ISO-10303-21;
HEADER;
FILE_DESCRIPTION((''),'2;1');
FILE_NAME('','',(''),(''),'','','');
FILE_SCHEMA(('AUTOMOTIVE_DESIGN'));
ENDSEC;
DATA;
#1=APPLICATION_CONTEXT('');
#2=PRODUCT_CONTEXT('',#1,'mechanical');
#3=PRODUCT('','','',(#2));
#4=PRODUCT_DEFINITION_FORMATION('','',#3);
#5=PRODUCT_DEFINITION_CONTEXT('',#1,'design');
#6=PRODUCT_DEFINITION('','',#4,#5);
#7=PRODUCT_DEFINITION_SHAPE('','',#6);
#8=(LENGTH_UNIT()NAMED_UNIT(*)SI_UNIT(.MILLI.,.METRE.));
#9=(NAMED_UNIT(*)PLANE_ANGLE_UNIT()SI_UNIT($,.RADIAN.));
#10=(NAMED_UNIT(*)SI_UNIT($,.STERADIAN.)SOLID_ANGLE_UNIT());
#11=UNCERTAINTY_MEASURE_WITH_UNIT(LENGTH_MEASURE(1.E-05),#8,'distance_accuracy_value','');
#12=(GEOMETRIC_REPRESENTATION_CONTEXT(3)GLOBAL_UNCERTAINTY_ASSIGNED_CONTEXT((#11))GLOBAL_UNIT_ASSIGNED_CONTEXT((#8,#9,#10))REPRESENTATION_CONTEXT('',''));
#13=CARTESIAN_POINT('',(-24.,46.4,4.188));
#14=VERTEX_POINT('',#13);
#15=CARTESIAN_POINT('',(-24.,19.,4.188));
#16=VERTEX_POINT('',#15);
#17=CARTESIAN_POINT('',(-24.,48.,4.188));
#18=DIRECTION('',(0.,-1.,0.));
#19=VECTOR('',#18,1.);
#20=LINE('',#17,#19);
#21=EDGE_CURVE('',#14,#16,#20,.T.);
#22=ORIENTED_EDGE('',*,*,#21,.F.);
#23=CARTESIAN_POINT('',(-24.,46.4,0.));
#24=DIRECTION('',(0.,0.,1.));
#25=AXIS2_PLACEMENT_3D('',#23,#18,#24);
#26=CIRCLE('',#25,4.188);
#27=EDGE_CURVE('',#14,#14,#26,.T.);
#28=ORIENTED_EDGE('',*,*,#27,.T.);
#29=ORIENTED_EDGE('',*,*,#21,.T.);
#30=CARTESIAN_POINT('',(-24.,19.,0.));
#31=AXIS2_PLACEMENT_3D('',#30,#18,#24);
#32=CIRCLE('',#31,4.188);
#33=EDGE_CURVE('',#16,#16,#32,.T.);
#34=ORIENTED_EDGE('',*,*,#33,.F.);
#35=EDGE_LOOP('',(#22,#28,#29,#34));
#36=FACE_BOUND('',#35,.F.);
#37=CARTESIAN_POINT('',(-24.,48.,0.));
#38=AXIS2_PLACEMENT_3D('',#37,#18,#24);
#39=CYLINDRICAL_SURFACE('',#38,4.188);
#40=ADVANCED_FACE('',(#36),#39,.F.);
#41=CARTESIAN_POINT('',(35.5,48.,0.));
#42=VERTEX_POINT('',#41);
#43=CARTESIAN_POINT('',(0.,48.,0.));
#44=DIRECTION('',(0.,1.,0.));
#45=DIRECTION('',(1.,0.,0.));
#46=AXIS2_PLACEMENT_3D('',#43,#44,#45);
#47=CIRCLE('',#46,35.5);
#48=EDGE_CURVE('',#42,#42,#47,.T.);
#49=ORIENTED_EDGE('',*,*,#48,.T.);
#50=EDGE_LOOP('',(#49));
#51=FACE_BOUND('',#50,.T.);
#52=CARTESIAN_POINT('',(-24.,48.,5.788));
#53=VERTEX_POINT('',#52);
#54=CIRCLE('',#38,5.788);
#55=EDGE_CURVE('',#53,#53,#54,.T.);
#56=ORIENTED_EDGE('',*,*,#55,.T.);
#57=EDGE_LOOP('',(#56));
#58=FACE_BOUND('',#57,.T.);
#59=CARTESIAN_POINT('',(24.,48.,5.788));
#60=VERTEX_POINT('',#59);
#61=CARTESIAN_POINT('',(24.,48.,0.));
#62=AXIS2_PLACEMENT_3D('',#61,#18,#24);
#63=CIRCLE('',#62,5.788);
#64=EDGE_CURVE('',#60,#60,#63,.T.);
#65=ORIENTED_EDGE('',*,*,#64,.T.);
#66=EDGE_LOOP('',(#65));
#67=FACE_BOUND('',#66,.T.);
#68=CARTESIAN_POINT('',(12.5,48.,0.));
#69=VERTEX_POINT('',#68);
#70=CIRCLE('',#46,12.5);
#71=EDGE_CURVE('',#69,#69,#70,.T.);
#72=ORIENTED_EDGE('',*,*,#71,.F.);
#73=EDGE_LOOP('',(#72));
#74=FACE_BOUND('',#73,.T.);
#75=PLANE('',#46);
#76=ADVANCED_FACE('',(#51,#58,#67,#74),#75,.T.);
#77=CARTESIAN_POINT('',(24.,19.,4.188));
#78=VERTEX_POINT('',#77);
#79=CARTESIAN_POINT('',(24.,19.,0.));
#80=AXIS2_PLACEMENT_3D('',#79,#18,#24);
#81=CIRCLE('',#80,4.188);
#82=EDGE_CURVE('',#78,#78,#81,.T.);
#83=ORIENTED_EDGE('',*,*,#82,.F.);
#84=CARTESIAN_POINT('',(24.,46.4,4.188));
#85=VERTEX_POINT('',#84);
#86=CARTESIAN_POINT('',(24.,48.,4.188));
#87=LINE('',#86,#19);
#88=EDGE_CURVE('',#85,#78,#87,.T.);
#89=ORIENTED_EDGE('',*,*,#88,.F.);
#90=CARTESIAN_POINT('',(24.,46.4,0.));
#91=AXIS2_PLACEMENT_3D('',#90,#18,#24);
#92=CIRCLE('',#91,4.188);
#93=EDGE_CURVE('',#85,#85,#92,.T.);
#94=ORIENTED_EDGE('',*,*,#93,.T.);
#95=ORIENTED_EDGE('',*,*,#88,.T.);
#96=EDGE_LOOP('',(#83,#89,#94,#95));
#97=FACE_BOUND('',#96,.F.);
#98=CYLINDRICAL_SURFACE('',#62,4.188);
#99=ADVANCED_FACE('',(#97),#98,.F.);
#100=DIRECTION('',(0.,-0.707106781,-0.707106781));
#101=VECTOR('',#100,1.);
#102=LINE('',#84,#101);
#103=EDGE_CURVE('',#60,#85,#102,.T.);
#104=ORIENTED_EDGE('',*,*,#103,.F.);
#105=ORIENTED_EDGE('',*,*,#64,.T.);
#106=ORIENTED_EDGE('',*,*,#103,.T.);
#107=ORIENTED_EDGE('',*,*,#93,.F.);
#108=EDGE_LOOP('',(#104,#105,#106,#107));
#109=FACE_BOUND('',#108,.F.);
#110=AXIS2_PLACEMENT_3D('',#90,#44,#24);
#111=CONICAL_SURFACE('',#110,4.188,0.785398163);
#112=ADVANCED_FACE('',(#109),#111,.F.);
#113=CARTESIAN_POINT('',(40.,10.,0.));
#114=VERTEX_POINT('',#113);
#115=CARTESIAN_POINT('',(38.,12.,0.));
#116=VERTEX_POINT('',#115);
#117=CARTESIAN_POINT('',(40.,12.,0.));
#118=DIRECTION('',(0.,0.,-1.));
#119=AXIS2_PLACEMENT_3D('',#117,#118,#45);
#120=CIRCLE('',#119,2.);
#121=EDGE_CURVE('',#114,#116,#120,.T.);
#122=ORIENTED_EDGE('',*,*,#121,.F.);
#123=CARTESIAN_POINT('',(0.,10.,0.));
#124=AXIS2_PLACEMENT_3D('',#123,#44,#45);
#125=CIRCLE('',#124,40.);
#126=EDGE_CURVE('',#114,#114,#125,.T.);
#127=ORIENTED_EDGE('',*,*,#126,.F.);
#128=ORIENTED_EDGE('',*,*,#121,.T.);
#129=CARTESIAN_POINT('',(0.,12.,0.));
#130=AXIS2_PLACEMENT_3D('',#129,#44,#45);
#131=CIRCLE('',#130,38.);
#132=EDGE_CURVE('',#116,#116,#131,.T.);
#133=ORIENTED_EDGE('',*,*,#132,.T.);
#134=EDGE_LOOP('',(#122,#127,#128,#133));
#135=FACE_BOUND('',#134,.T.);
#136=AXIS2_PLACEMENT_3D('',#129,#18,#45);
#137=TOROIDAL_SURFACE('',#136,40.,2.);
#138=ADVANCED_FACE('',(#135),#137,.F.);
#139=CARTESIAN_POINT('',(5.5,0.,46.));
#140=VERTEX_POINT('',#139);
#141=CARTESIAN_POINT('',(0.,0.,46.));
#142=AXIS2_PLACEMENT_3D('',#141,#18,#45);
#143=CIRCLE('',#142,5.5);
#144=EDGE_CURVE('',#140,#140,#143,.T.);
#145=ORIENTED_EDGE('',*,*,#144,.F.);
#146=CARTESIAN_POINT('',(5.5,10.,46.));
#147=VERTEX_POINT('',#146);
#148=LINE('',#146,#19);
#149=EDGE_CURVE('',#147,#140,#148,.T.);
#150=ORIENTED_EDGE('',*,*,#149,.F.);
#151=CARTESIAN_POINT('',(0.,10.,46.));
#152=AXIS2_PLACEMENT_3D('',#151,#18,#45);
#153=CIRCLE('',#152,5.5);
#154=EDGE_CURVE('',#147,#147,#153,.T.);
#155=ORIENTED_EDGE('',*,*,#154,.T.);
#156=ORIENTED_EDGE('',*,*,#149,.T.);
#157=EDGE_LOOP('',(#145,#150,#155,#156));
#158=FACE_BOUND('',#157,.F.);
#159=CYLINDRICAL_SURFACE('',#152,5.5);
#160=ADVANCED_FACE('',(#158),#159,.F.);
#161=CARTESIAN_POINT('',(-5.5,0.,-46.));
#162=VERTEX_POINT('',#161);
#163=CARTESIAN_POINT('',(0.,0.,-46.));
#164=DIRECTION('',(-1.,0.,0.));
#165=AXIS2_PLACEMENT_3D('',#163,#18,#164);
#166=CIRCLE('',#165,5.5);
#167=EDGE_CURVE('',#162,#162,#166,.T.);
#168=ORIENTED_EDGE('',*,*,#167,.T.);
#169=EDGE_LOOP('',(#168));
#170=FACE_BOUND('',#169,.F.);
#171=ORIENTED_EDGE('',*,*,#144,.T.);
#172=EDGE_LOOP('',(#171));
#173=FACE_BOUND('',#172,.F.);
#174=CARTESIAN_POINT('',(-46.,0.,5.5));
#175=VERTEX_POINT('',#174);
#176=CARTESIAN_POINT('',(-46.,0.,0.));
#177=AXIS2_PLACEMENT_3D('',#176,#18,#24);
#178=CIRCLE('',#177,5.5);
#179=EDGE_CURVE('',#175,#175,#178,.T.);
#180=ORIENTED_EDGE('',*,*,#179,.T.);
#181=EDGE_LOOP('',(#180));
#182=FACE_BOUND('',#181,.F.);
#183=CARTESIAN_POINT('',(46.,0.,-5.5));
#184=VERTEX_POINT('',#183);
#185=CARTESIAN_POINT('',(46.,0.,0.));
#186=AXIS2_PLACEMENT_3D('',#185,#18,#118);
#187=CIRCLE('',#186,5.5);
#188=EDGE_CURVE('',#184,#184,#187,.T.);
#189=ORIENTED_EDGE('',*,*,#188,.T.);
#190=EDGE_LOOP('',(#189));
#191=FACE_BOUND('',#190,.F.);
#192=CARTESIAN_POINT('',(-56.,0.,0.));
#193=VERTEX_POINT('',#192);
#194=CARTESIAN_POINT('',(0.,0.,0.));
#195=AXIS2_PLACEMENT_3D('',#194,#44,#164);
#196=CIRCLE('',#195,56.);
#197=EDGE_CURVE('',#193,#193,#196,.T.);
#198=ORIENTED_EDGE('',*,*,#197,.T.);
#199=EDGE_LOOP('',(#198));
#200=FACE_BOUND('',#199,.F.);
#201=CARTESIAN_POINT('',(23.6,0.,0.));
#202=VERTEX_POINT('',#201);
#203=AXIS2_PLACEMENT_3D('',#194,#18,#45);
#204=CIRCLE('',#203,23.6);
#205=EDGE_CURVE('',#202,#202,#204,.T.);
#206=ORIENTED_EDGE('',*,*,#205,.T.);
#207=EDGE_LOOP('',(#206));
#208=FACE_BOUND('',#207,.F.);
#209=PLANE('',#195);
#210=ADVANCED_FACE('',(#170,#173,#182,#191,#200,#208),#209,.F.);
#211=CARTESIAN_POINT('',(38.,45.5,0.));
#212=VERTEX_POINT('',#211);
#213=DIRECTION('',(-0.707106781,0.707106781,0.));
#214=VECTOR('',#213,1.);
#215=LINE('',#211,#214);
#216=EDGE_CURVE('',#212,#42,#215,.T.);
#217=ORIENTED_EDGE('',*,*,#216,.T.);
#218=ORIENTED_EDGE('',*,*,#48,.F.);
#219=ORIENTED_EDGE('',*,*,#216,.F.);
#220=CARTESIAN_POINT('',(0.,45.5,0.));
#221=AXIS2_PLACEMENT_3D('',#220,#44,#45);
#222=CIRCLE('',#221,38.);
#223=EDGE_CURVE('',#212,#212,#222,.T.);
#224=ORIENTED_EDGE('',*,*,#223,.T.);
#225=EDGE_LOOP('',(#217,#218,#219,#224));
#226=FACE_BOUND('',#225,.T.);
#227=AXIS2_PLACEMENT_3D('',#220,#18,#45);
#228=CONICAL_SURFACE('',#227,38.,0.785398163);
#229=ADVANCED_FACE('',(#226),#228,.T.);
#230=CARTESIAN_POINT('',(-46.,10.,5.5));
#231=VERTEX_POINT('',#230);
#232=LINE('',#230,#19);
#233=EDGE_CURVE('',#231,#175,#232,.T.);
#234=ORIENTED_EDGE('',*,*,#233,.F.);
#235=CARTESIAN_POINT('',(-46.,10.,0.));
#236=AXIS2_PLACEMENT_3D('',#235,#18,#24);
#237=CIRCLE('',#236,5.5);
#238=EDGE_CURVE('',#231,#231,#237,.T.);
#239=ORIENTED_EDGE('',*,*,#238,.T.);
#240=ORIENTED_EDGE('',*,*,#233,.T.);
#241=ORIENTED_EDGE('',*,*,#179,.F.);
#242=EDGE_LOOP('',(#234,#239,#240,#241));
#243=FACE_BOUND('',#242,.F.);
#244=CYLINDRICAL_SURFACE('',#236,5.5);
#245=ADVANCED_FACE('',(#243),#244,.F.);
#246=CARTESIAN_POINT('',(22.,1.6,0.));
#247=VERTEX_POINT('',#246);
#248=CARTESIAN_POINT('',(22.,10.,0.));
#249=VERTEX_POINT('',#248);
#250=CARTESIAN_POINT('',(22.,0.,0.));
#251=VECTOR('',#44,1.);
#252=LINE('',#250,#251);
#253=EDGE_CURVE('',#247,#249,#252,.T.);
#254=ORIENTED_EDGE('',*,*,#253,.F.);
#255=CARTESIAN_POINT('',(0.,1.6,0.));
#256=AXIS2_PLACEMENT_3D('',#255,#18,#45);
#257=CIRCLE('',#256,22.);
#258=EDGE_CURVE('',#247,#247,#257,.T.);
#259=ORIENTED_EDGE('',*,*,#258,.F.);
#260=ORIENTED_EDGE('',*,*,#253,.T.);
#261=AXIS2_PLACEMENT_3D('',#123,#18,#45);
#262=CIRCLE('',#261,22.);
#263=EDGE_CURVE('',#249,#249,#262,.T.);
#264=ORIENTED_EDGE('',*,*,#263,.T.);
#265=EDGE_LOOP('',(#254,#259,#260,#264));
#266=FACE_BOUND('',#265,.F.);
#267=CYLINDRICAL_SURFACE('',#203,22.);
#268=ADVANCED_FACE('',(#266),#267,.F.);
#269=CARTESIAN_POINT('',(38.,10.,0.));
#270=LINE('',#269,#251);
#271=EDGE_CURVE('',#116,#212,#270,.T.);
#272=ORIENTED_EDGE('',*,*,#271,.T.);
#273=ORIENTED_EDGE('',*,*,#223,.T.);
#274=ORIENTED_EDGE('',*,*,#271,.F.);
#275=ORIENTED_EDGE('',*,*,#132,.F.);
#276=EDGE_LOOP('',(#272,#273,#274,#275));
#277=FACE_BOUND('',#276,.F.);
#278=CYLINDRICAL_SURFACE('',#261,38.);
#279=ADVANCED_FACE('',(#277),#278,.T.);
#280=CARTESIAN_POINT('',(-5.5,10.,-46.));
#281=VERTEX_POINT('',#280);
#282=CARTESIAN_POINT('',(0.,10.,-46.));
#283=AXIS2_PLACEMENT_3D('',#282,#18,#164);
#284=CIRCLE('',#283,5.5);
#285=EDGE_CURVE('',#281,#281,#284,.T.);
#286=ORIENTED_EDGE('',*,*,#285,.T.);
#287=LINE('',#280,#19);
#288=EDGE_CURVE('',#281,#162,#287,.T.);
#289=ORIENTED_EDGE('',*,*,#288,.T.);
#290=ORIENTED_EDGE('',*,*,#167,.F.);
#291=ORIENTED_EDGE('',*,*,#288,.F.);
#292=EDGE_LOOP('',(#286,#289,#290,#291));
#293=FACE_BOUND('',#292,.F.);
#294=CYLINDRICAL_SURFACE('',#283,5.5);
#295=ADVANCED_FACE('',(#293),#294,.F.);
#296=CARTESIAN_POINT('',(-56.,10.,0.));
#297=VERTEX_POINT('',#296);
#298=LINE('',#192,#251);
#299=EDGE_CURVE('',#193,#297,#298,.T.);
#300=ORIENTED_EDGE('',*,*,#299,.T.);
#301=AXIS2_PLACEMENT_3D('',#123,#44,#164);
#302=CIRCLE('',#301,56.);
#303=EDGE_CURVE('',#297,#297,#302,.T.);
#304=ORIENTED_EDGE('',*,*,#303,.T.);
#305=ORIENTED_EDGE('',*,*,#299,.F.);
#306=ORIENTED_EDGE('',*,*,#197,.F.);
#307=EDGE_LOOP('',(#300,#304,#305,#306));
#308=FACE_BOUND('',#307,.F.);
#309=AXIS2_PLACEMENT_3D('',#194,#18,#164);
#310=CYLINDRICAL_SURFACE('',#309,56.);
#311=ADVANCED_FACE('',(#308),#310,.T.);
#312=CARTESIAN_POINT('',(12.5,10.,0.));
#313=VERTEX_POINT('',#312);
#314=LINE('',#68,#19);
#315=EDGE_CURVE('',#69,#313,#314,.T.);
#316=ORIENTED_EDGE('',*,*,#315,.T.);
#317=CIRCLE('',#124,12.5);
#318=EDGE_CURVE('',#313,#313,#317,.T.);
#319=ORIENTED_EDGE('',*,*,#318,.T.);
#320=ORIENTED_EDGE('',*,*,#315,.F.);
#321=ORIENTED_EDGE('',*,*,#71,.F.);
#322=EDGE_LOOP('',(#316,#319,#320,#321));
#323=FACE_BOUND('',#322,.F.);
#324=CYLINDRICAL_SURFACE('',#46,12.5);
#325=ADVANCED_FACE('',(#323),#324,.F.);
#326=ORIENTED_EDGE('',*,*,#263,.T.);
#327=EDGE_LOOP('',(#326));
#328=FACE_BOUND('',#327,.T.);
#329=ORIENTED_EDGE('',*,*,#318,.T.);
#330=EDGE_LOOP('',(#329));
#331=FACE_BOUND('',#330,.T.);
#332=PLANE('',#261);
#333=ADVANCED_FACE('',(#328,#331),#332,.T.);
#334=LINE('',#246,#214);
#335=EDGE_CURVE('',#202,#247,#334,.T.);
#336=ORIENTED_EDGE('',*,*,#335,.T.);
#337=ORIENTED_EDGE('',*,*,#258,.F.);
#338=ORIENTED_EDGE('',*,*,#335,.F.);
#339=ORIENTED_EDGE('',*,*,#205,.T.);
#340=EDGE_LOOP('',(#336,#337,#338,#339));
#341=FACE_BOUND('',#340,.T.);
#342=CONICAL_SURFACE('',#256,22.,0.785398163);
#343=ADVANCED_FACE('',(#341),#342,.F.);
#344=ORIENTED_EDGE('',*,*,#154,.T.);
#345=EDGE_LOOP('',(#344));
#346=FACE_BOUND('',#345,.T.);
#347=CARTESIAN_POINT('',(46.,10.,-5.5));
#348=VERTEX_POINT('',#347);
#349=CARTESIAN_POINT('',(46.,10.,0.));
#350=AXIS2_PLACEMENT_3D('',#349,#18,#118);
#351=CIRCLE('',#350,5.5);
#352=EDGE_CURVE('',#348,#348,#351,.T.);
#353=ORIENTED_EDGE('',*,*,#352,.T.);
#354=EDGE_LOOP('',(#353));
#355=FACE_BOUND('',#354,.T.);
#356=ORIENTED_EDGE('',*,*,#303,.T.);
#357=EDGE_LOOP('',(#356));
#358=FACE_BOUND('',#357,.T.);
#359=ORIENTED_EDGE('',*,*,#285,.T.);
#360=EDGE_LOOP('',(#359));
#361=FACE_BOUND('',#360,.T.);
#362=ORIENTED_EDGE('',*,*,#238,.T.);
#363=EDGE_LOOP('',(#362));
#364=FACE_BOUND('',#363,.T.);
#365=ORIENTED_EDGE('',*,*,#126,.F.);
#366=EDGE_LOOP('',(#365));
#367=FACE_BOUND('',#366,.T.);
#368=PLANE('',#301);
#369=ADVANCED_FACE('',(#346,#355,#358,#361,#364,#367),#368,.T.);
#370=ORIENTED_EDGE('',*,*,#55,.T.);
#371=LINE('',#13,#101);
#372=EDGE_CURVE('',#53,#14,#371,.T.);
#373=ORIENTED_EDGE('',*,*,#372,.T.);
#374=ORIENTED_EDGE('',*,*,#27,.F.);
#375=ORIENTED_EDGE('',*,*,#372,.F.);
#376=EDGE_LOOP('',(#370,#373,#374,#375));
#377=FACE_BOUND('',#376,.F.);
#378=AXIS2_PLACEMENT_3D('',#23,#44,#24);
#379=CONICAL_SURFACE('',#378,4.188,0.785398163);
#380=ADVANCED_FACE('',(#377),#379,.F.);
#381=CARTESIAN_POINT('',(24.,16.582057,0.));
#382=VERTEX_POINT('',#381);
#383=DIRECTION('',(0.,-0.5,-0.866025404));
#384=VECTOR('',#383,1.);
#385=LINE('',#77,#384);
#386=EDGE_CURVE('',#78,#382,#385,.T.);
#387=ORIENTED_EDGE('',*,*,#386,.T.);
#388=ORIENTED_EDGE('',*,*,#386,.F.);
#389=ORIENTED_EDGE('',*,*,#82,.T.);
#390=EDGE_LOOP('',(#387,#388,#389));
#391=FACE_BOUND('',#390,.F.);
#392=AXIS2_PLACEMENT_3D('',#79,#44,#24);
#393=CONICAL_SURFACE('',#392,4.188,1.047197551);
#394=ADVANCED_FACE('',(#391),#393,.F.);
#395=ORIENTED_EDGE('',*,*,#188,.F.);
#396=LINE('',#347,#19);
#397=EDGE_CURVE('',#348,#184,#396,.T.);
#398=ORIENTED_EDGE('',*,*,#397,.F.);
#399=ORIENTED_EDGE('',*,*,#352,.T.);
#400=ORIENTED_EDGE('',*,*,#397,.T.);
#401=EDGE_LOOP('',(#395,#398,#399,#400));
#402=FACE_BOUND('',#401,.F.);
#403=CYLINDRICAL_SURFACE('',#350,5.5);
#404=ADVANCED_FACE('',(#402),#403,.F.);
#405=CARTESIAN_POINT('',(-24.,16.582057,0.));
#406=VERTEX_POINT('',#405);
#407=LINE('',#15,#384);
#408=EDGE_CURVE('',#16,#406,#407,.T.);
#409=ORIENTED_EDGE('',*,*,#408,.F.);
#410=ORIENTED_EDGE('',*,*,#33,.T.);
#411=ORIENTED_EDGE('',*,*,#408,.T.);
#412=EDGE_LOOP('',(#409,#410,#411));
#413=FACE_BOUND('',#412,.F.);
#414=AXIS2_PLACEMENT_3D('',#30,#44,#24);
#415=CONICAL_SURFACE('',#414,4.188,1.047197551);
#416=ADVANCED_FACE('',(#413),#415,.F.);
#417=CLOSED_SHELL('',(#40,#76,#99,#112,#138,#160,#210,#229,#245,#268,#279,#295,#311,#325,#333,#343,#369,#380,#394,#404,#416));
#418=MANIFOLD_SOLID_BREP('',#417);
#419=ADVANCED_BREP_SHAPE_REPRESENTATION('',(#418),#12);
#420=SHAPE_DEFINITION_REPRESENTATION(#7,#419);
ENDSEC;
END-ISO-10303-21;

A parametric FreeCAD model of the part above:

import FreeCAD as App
import Part
import Sketcher
from FreeCAD import Vector


def edges_at(feature, points):
    """Names of the edges that pass closest to the given points."""
    edges = feature.Shape.Edges
    near = lambda p: min(range(len(edges)), key=lambda i: edges[i].distToShape(Part.Vertex(*p))[0])
    return sorted({f"Edge{near(p) + 1}" for p in points})

doc = App.newDocument("Part")
body = doc.addObject("PartDesign::Body", "Body")

# Sketch on XZ plane
sketch1 = doc.addObject("Sketcher::SketchObject", "Sketch")
body.addObject(sketch1)
sketch1.AttachmentSupport = (doc.XZ_Plane, [""])
sketch1.MapMode = "FlatFace"
sketch1.addGeometry(Part.Circle(Vector(0, 0, 0), Vector(0, 0, 1), 56), False)
sketch1.addConstraint([
    Sketcher.Constraint("Coincident", 0, 3, -1, 1),
    Sketcher.Constraint("Diameter", 0, 112.0),
])
pad1 = doc.addObject("PartDesign::Pad", "Pad")
body.addObject(pad1)
pad1.Profile = sketch1
pad1.Length = 10
pad1.Reversed = True

# Sketch on XZ plane
sketch2 = doc.addObject("Sketcher::SketchObject", "Sketch001")
body.addObject(sketch2)
sketch2.AttachmentSupport = (doc.XZ_Plane, [""])
sketch2.MapMode = "FlatFace"
sketch2.AttachmentOffset = App.Placement(Vector(0, 0, -10), App.Rotation())
sketch2.addGeometry(Part.Circle(Vector(0, 0, 0), Vector(0, 0, 1), 38), False)
sketch2.addConstraint([
    Sketcher.Constraint("Coincident", 0, 3, -1, 1),
    Sketcher.Constraint("Diameter", 0, 76.0),
])
pad2 = doc.addObject("PartDesign::Pad", "Pad001")
body.addObject(pad2)
pad2.Profile = sketch2
pad2.Length = 38
pad2.Reversed = True

# Sketch on XZ plane
sketch3 = doc.addObject("Sketcher::SketchObject", "Sketch002")
body.addObject(sketch3)
sketch3.AttachmentSupport = (doc.XZ_Plane, [""])
sketch3.MapMode = "FlatFace"
sketch3.AttachmentOffset = App.Placement(Vector(0, 0, -10), App.Rotation())
sketch3.addGeometry(Part.Circle(Vector(-46, 0, 0), Vector(0, 0, 1), 6), False)
sketch3.addConstraint([
    Sketcher.Constraint("PointOnObject", 0, 3, -1),
    Sketcher.Constraint("Diameter", 0, 11.0),
    Sketcher.Constraint("DistanceX", 0, 3, -1, 1, 46.0),
])
doc.recompute()
hole = doc.addObject("PartDesign::Hole", "Hole")
body.addObject(hole)
hole.Profile = sketch3
hole.ThreadType = "None"
hole.Diameter = 11
hole.DepthType = "ThroughAll"
hole.Reversed = True
doc.recompute()

polarpattern = doc.addObject("PartDesign::PolarPattern", "PolarPattern")
body.addObject(polarpattern)
polarpattern.Originals = [hole]
polarpattern.Axis = (doc.Y_Axis, [""])
polarpattern.Angle = 360
polarpattern.Occurrences = 4
body.Tip = polarpattern

# Sketch on XZ plane
sketch4 = doc.addObject("Sketcher::SketchObject", "Sketch003")
body.addObject(sketch4)
sketch4.AttachmentSupport = (doc.XZ_Plane, [""])
sketch4.MapMode = "FlatFace"
sketch4.addGeometry(Part.Circle(Vector(0, 0, 0), Vector(0, 0, 1), 22), False)
sketch4.addConstraint([
    Sketcher.Constraint("Coincident", 0, 3, -1, 1),
    Sketcher.Constraint("Diameter", 0, 44.0),
])
pocket1 = doc.addObject("PartDesign::Pocket", "Pocket")
body.addObject(pocket1)
pocket1.Profile = sketch4
pocket1.Length = 10

# Sketch on XZ plane
sketch5 = doc.addObject("Sketcher::SketchObject", "Sketch004")
body.addObject(sketch5)
sketch5.AttachmentSupport = (doc.XZ_Plane, [""])
sketch5.MapMode = "FlatFace"
sketch5.AttachmentOffset = App.Placement(Vector(0, 0, -48), App.Rotation())
sketch5.addGeometry(Part.Circle(Vector(0, 0, 0), Vector(0, 0, 1), 12), False)
sketch5.addConstraint([
    Sketcher.Constraint("Coincident", 0, 3, -1, 1),
    Sketcher.Constraint("Diameter", 0, 25.0),
])
pocket2 = doc.addObject("PartDesign::Pocket", "Pocket001")
body.addObject(pocket2)
pocket2.Profile = sketch5
pocket2.Type = "ThroughAll"
pocket2.Reversed = True
doc.recompute()

fillet = doc.addObject("PartDesign::Fillet", "Fillet")
body.addObject(fillet)
fillet.Base = (pocket2, edges_at(pocket2, [(-38, 10, 0)]))
fillet.Radius = 2
doc.recompute()

chamfer = doc.addObject("PartDesign::Chamfer", "Chamfer")
body.addObject(chamfer)
chamfer.Base = (fillet, edges_at(fillet, [(-22, 0, 0)]))
chamfer.Size = 1.6
doc.recompute()

chamfer2 = doc.addObject("PartDesign::Chamfer", "Chamfer001")
body.addObject(chamfer2)
chamfer2.Base = (chamfer, edges_at(chamfer, [(-38, 48, 0)]))
chamfer2.Size = 2.5

# Sketch on XZ plane
sketch6 = doc.addObject("Sketcher::SketchObject", "Sketch005")
body.addObject(sketch6)
sketch6.AttachmentSupport = (doc.XZ_Plane, [""])
sketch6.MapMode = "FlatFace"
sketch6.AttachmentOffset = App.Placement(Vector(0, 0, -48), App.Rotation())
sketch6.addGeometry([
    Part.Circle(Vector(-24, 0, 0), Vector(0, 0, 1), 4.2),
    Part.Circle(Vector(24, 0, 0), Vector(0, 0, 1), 4.2),
], False)
sketch6.addConstraint([
    Sketcher.Constraint("Equal", 0, 1),
    Sketcher.Constraint("Symmetric", 0, 3, 1, 3, -1, 1),
    Sketcher.Constraint("PointOnObject", 0, 3, -1),
    Sketcher.Constraint("Diameter", 0, 8.376),
    Sketcher.Constraint("DistanceX", 0, 3, -1, 1, 24.0),
])
doc.recompute()
hole2 = doc.addObject("PartDesign::Hole", "Hole001")
body.addObject(hole2)
hole2.Profile = sketch6
hole2.ThreadType = "None"
hole2.Diameter = 8.376
hole2.DepthType = "Dimension"
hole2.Depth = 29
hole2.DrillPoint = "Angled"
hole2.DrillPointAngle = 120
hole2.Reversed = True
doc.recompute()

chamfer3 = doc.addObject("PartDesign::Chamfer", "Chamfer002")
body.addObject(chamfer3)
chamfer3.Base = (hole2, edges_at(hole2, [(-24, 48, -4.188), (24, 48, -4.188)]))
chamfer3.Size = 1.6

doc.recompute()
